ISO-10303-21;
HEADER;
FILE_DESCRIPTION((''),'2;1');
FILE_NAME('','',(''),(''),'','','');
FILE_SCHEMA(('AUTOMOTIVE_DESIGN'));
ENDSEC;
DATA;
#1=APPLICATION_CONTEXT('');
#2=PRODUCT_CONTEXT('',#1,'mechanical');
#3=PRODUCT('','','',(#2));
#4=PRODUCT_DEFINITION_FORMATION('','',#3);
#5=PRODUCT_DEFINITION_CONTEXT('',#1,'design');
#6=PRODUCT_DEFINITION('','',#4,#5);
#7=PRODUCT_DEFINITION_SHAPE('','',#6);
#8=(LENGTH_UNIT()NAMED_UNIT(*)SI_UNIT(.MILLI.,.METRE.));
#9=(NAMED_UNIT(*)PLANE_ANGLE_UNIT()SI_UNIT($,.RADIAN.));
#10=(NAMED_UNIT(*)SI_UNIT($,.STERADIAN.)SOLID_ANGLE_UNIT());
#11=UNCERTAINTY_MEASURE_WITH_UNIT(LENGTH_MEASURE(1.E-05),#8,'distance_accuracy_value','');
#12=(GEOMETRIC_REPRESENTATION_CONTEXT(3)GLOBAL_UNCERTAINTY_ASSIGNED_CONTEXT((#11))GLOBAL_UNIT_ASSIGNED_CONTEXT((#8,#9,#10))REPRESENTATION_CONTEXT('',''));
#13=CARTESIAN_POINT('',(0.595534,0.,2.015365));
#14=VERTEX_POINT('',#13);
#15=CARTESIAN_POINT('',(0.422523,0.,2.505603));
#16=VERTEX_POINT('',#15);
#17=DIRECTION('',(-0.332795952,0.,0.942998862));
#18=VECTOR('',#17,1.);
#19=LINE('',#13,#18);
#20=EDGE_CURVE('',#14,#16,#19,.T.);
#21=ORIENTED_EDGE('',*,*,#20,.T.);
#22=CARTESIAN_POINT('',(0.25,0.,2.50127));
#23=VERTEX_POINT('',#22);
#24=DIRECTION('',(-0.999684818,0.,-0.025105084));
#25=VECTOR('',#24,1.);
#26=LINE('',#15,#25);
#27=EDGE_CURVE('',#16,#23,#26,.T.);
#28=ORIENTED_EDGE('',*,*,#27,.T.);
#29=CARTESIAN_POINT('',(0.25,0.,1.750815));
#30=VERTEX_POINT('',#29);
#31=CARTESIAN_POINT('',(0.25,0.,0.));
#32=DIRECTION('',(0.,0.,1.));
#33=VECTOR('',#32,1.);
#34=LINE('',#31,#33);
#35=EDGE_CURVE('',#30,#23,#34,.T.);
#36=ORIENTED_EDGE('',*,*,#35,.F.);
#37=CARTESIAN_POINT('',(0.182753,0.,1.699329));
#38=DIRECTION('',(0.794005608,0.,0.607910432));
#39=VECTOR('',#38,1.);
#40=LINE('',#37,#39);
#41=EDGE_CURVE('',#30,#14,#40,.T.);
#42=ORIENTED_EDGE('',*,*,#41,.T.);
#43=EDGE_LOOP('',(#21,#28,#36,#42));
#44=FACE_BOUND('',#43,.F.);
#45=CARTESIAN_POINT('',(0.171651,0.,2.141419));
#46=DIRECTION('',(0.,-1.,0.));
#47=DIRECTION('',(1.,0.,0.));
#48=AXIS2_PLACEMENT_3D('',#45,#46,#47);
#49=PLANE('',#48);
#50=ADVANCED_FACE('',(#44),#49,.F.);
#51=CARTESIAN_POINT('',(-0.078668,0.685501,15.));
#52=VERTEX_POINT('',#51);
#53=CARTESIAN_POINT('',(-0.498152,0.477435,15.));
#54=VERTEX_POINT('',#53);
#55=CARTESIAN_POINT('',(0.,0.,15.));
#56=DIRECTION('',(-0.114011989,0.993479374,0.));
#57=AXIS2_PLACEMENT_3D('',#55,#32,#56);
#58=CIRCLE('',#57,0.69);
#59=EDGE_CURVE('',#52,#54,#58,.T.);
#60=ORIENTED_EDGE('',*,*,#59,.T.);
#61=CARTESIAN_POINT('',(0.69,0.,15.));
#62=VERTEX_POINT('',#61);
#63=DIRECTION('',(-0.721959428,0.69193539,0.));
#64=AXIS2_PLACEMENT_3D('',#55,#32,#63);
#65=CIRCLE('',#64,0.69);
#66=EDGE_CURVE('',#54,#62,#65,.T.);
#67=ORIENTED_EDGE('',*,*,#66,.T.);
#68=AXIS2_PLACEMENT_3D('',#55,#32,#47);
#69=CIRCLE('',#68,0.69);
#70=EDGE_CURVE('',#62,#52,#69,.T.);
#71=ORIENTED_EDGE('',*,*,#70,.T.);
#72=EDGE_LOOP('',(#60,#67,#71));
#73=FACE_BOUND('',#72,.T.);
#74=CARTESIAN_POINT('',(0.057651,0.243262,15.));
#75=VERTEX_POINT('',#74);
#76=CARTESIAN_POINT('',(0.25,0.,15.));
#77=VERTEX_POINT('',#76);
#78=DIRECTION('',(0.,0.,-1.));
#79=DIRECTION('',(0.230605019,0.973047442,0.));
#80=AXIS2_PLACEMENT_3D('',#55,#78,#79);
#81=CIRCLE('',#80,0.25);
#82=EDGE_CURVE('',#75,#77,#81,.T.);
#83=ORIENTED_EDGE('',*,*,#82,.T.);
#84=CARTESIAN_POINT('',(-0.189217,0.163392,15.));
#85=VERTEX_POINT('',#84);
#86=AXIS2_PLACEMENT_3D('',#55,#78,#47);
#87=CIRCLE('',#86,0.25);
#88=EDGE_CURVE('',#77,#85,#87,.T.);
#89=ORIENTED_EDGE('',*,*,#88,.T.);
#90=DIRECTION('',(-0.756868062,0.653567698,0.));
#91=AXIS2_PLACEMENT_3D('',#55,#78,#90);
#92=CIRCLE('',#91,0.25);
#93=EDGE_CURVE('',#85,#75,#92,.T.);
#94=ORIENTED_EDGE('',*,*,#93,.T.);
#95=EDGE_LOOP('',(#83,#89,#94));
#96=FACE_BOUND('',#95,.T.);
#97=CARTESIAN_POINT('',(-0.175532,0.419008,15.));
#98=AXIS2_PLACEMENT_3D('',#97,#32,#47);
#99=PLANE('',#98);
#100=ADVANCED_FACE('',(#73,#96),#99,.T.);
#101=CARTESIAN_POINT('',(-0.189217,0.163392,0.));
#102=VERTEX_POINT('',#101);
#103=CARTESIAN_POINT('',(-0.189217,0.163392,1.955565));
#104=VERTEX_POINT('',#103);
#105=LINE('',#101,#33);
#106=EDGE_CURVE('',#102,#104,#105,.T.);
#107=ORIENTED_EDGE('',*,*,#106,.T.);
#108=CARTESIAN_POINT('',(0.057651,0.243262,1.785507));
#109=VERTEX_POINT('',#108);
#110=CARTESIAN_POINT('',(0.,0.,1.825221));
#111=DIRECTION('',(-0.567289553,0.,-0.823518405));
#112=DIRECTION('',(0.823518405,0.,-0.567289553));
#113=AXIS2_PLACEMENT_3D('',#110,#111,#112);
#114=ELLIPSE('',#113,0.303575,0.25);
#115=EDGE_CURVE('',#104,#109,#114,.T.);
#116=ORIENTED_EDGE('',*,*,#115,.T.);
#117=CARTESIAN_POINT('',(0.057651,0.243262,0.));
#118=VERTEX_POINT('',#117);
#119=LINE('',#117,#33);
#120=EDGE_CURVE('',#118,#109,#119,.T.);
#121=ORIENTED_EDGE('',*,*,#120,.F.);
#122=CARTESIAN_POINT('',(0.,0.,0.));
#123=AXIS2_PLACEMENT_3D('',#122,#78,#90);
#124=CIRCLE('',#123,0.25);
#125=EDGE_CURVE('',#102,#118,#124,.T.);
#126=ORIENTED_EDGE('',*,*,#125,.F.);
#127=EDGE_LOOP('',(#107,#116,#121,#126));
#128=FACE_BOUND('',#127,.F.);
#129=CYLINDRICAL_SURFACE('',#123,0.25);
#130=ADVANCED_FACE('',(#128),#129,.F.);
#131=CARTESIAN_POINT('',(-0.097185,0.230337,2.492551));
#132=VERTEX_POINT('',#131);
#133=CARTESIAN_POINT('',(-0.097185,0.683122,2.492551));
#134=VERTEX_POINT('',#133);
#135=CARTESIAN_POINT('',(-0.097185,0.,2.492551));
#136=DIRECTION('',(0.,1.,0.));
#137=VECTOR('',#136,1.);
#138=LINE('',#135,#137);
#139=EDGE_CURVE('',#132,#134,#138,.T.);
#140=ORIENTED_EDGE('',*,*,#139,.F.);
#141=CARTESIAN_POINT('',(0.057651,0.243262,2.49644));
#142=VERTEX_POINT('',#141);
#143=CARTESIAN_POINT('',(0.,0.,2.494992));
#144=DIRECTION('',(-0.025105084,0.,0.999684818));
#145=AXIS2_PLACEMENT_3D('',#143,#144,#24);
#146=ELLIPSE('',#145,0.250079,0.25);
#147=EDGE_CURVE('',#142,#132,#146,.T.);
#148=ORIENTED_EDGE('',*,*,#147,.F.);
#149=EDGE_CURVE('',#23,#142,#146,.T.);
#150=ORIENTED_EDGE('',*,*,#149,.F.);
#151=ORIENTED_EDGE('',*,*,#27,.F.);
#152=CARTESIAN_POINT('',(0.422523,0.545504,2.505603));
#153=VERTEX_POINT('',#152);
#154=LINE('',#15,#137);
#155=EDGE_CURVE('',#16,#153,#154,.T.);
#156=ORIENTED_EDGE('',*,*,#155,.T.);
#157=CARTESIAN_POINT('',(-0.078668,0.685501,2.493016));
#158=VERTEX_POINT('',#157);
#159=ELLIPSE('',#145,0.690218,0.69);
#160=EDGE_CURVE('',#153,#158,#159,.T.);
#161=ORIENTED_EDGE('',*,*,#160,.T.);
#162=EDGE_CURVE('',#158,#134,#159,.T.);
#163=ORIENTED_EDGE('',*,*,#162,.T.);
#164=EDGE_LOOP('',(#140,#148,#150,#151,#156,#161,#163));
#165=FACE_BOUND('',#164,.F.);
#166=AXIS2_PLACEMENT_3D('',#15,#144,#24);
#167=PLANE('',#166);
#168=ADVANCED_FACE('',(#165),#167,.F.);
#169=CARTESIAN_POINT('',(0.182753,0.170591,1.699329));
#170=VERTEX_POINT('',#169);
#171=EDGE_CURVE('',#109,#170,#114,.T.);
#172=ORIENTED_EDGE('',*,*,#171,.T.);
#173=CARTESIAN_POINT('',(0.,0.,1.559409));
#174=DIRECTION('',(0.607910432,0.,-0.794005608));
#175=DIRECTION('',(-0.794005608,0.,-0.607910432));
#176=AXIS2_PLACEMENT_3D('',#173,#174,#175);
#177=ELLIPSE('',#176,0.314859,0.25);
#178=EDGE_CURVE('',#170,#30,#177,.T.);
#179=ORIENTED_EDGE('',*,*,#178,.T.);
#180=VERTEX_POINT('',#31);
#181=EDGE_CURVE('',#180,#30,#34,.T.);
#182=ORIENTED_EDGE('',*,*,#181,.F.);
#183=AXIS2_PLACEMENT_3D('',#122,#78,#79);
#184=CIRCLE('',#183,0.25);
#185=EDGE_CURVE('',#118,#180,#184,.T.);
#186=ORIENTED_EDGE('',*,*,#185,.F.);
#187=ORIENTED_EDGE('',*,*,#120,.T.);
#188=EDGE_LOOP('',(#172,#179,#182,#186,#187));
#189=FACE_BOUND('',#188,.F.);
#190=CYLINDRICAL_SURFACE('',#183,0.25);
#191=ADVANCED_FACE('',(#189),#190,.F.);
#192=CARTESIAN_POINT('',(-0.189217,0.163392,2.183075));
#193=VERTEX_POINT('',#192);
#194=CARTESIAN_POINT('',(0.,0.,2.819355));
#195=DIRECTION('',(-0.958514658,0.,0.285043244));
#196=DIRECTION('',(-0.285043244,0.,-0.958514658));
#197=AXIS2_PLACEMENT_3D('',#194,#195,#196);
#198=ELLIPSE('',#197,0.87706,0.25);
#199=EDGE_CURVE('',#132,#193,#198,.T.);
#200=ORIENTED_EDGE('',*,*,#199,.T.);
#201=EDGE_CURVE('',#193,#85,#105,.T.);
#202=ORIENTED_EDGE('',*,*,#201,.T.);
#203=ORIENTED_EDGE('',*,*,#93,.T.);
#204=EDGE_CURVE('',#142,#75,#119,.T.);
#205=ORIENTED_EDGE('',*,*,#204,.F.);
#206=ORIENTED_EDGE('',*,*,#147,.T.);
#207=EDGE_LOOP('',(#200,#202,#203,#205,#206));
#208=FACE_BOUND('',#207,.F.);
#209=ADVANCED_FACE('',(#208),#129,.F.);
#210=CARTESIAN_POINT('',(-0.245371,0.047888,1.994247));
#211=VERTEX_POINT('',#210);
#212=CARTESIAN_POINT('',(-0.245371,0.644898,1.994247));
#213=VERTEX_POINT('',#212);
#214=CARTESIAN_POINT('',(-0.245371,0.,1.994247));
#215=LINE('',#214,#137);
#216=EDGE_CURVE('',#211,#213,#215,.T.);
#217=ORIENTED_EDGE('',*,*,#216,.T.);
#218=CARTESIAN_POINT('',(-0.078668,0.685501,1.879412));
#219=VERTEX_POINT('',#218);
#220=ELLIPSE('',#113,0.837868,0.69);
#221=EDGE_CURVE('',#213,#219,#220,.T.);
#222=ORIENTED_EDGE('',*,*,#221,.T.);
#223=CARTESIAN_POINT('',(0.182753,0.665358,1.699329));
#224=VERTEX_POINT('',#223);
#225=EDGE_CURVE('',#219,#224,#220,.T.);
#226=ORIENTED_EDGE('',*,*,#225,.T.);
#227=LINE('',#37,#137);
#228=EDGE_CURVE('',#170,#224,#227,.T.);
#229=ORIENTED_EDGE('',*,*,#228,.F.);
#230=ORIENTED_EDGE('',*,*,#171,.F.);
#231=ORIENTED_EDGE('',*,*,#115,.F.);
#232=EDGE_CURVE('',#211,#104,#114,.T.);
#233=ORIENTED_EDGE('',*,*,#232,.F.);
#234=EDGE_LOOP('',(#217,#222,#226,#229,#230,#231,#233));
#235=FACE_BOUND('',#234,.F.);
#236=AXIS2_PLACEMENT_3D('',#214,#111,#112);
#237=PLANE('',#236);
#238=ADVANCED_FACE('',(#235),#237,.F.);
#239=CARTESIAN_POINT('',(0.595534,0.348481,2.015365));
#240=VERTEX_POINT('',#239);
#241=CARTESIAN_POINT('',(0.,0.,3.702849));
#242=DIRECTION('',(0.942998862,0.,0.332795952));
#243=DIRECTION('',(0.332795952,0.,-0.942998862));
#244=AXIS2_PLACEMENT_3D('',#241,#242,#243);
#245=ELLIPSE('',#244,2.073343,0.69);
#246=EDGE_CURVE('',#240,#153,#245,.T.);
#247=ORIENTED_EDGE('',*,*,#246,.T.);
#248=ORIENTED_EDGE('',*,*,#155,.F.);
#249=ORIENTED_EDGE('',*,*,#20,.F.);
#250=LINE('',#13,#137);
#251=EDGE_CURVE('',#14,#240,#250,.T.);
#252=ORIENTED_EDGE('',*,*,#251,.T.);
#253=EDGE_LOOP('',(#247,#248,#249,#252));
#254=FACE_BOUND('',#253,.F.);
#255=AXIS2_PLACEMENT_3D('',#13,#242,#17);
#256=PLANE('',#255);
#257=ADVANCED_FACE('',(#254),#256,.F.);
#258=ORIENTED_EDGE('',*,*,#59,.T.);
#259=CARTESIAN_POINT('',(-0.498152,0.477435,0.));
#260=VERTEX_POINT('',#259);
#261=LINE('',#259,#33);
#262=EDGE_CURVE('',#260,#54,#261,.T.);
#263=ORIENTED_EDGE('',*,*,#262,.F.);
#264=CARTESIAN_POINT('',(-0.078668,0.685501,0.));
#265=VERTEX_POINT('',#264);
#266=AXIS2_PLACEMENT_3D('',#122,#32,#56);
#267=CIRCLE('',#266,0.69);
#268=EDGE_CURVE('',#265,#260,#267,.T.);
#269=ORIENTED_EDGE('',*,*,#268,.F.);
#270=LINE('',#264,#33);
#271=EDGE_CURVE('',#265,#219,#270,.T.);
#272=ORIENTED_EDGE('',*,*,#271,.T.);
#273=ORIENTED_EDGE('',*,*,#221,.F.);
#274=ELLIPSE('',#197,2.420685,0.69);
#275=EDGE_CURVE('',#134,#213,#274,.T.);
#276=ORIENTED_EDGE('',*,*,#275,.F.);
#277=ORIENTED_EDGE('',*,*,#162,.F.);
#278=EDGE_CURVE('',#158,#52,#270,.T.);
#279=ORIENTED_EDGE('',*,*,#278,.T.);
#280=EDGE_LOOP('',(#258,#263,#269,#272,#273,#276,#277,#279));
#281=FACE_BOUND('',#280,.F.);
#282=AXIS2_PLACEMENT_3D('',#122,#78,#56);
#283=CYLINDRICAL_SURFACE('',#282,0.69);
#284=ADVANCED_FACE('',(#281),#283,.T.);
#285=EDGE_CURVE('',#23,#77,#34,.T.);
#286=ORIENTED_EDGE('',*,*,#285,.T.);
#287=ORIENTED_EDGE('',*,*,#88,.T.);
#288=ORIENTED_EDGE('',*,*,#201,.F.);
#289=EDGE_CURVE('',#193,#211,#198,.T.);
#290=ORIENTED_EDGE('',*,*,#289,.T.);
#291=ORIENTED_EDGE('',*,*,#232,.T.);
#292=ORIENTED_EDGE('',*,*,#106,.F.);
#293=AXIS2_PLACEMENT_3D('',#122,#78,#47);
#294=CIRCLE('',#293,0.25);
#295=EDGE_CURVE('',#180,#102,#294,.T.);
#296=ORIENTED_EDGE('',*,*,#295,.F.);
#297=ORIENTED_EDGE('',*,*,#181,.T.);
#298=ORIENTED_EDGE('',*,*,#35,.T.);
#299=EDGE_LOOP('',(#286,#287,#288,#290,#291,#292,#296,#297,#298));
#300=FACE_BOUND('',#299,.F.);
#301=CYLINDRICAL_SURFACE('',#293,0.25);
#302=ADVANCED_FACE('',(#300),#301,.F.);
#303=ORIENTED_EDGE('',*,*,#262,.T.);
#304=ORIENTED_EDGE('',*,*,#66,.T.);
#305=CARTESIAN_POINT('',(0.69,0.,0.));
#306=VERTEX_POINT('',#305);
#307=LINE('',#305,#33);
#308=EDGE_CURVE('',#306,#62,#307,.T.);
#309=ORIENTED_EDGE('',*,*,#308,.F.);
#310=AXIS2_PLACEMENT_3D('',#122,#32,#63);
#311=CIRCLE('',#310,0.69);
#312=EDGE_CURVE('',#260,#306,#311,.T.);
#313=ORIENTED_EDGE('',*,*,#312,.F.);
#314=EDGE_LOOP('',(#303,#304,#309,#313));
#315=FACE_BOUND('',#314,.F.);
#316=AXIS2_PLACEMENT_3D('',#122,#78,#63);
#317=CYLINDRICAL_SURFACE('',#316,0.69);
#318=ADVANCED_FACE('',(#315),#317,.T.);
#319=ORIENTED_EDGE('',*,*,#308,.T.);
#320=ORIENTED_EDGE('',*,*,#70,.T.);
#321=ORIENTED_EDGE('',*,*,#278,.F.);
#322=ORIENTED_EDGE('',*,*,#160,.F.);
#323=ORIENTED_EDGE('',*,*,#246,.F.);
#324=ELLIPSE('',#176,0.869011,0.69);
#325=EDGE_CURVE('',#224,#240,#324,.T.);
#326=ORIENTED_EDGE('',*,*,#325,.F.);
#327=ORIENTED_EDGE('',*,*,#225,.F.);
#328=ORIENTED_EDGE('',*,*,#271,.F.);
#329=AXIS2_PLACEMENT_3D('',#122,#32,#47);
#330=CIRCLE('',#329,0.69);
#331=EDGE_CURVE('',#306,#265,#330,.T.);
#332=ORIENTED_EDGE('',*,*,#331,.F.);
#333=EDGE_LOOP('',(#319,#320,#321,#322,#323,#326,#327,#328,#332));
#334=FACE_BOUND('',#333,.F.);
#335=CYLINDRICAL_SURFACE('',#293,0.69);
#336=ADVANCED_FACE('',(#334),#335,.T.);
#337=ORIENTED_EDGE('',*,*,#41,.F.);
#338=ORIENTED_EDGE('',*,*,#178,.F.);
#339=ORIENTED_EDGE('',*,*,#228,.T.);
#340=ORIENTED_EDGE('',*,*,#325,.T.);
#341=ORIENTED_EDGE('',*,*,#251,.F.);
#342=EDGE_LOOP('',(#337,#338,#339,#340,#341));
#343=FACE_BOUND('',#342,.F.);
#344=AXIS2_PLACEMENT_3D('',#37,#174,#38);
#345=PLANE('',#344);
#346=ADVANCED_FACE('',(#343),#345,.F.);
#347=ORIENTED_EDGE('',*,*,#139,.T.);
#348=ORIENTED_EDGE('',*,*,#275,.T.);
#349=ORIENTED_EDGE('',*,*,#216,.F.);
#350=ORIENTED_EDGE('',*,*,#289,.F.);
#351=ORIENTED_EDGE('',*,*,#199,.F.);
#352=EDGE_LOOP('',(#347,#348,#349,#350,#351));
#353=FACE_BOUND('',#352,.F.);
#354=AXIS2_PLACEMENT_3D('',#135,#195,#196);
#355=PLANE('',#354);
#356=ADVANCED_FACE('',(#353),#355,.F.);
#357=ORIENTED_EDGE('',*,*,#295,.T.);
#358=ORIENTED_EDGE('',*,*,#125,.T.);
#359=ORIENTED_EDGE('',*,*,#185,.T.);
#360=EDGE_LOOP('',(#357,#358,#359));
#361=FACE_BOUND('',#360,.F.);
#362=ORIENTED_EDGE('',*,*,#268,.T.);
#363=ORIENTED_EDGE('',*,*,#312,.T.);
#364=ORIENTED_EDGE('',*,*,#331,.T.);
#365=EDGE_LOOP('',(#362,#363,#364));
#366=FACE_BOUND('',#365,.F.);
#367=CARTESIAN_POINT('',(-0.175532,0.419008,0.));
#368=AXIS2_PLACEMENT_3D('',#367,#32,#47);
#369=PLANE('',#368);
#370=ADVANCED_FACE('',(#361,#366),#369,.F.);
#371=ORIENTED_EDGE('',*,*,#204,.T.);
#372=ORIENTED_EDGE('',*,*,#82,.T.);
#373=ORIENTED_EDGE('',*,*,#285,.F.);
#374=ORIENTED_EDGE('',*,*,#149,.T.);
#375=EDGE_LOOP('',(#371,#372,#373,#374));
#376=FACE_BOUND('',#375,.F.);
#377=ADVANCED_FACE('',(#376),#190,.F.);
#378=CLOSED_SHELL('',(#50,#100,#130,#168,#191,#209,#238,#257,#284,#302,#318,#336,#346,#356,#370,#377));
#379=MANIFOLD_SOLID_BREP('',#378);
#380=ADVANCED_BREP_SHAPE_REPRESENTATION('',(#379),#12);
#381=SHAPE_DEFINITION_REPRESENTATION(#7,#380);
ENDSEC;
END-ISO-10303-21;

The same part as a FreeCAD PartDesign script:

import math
import FreeCAD as App
import Part
import Sketcher
Q = App.Units.Quantity

doc = App.newDocument("Part")
body = doc.addObject("PartDesign::Body", "Body")

# Sketch on XY plane
sketch1 = body.newObject("Sketcher::SketchObject", "Sketch")
sketch1.AttachmentSupport = (doc.getObject("XY_Plane"), [""])
sketch1.MapMode = "FlatFace"
sketch1.addGeometry(Part.ArcOfCircle(Part.Circle(App.Vector(0, 0, 0), App.Vector(0, 0, 1), 0.69), math.radians(96.546641), math.radians(136.216492)), False)
sketch1.addGeometry(Part.ArcOfCircle(Part.Circle(App.Vector(0, 0, 0), App.Vector(0, 0, 1), 0.69), math.radians(136.216492), math.radians(360)), False)
sketch1.addGeometry(Part.ArcOfCircle(Part.Circle(App.Vector(0, 0, 0), App.Vector(0, 0, 1), 0.69), math.radians(0), math.radians(96.546641)), False)
sketch1.addGeometry(Part.ArcOfCircle(Part.Circle(App.Vector(0, 0, 0), App.Vector(0, 0, 1), 0.25), math.radians(76.667306), math.radians(139.188866)), False)
sketch1.addGeometry(Part.ArcOfCircle(Part.Circle(App.Vector(0, 0, 0), App.Vector(0, 0, 1), 0.25), math.radians(0), math.radians(76.667306)), False)
sketch1.addGeometry(Part.ArcOfCircle(Part.Circle(App.Vector(0, 0, 0), App.Vector(0, 0, 1), 0.25), math.radians(139.188866), math.radians(360)), False)
sketch1.addConstraint(Sketcher.Constraint("Tangent", 0, 2, 1, 1))
sketch1.addConstraint(Sketcher.Constraint("Tangent", 1, 2, 2, 1))
sketch1.addConstraint(Sketcher.Constraint("Tangent", 2, 2, 0, 1))
sketch1.addConstraint(Sketcher.Constraint("Tangent", 3, 1, 4, 2))
sketch1.addConstraint(Sketcher.Constraint("Tangent", 4, 1, 5, 2))
sketch1.addConstraint(Sketcher.Constraint("Tangent", 5, 1, 3, 2))
sketch1.addConstraint(Sketcher.Constraint("Coincident", 0, 3, -1, 1))
sketch1.addConstraint(Sketcher.Constraint("Coincident", 3, 3, -1, 1))
sketch1.addConstraint(Sketcher.Constraint("PointOnObject", 1, 2, -1))
sketch1.addConstraint(Sketcher.Constraint("PointOnObject", 4, 1, -1))
sketch1.addConstraint(Sketcher.Constraint("Radius", 0, Q("0.69 mm")))
sketch1.addConstraint(Sketcher.Constraint("Radius", 3, Q("0.25 mm")))
sketch1.addConstraint(Sketcher.Constraint("DistanceY", -1, 1, 2, 2, Q("0.685501 mm")))
sketch1.addConstraint(Sketcher.Constraint("DistanceX", -1, 1, 3, 1, Q("0.057651 mm")))
sketch1.addConstraint(Sketcher.Constraint("DistanceY", -1, 1, 5, 1, Q("0.163392 mm")))
sketch1.addConstraint(Sketcher.Constraint("DistanceX", 0, 2, -1, 1, Q("0.498152 mm")))
pad1 = body.newObject("PartDesign::Pad", "Pad")
pad1.Profile = sketch1
pad1.Length = 15

# Sketch on XZ plane
sketch2 = body.newObject("Sketcher::SketchObject", "Sketch001")
sketch2.AttachmentSupport = (doc.getObject("XZ_Plane"), [""])
sketch2.MapMode = "FlatFace"
sketch2.addGeometry(Part.LineSegment(App.Vector(0.182753, 1.699329, 0), App.Vector(0.595534, 2.015365, 0)), False)
sketch2.addGeometry(Part.LineSegment(App.Vector(0.595534, 2.015365, 0), App.Vector(0.422523, 2.505603, 0)), False)
sketch2.addGeometry(Part.LineSegment(App.Vector(0.422523, 2.505603, 0), App.Vector(-0.097185, 2.492551, 0)), False)
sketch2.addGeometry(Part.LineSegment(App.Vector(-0.097185, 2.492551, 0), App.Vector(-0.245371, 1.994247, 0)), False)
sketch2.addGeometry(Part.LineSegment(App.Vector(-0.245371, 1.994247, 0), App.Vector(0.182753, 1.699329, 0)), False)
sketch2.addConstraint(Sketcher.Constraint("Coincident", 0, 2, 1, 1))
sketch2.addConstraint(Sketcher.Constraint("Coincident", 1, 2, 2, 1))
sketch2.addConstraint(Sketcher.Constraint("Coincident", 2, 2, 3, 1))
sketch2.addConstraint(Sketcher.Constraint("Coincident", 3, 2, 4, 1))
sketch2.addConstraint(Sketcher.Constraint("Coincident", 4, 2, 0, 1))
sketch2.addConstraint(Sketcher.Constraint("Equal", 0, 1))
sketch2.addConstraint(Sketcher.Constraint("Equal", 1, 2))
sketch2.addConstraint(Sketcher.Constraint("Equal", 2, 3))
sketch2.addConstraint(Sketcher.Constraint("Equal", 3, 4))
sketch2.addConstraint(Sketcher.Constraint("Distance", 0, Q("0.519872 mm")))
sketch2.addConstraint(Sketcher.Constraint("DistanceY", -1, 1, 2, 2, Q("2.492551 mm")))
sketch2.addConstraint(Sketcher.Constraint("DistanceX", 3, 2, -1, 1, Q("0.245371 mm")))
sketch2.addConstraint(Sketcher.Constraint("DistanceY", -1, 1, 4, 2, Q("1.699329 mm")))
sketch2.addConstraint(Sketcher.Constraint("DistanceX", 1, 2, 0, 2, Q("0.173011 mm")))
sketch2.addConstraint(Sketcher.Constraint("DistanceY", 2, 2, 1, 2, Q("0.013051 mm")))
pocket1 = body.newObject("PartDesign::Pocket", "Pocket")
pocket1.Profile = sketch2
pocket1.Length = 0.7

doc.recompute()
